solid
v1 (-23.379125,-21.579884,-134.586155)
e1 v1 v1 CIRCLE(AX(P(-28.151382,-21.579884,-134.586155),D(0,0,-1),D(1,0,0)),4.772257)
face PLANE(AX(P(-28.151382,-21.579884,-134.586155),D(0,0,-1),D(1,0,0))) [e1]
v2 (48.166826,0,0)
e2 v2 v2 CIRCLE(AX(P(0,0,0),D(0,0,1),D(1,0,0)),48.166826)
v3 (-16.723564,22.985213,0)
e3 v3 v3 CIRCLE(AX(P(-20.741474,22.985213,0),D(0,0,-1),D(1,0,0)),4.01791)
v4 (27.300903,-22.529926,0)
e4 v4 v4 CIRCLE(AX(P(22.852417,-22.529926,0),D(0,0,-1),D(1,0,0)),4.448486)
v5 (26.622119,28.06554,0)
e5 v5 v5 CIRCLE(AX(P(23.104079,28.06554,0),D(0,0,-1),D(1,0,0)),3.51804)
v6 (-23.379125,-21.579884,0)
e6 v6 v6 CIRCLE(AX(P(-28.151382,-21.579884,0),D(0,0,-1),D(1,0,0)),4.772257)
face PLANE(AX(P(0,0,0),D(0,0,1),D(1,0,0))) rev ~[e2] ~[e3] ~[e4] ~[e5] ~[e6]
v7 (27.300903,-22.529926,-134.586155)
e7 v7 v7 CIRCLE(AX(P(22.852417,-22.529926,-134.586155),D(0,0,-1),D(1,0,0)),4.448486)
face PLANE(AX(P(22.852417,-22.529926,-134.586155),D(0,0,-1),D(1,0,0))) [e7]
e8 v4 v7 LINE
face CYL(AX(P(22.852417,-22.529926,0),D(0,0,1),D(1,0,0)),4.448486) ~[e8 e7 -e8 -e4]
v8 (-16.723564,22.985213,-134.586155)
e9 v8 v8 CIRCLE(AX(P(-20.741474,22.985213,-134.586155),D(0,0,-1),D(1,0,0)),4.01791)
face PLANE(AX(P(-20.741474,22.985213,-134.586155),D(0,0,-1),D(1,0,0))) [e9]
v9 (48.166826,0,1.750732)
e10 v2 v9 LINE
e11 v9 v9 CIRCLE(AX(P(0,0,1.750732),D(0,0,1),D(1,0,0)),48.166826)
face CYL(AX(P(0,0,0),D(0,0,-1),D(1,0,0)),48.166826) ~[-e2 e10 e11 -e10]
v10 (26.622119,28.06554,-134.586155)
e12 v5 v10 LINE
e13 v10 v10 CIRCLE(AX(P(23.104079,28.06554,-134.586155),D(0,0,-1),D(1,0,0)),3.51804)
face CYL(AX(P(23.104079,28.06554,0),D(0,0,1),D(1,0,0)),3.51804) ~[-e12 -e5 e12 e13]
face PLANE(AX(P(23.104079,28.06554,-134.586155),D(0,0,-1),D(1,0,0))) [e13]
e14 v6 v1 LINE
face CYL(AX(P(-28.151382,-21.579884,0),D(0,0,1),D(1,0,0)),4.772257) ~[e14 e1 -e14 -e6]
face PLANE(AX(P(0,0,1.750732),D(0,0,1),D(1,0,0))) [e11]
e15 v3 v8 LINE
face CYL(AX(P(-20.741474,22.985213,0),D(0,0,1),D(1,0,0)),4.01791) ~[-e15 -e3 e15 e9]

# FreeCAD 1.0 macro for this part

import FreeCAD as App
import Part
import Sketcher

doc = App.newDocument("Part")
body = doc.addObject("PartDesign::Body", "Body")

# Sketch on XY plane
sketch1 = body.newObject("Sketcher::SketchObject", "Sketch")
sketch1.AttachmentSupport = (doc.getObject("XY_Plane"), [""])
sketch1.MapMode = "FlatFace"
sketch1.addGeometry(Part.Circle(App.Vector(0, 0, 0), App.Vector(0, 0, 1), 48), False)
sketch1.addConstraint(Sketcher.Constraint("Coincident", 0, 3, -1, 1))
sketch1.addConstraint(Sketcher.Constraint("Diameter", 0, 96.333652))
pad1 = body.newObject("PartDesign::Pad", "Pad")
pad1.Profile = sketch1
pad1.Length = 1.750732

# Sketch on XY plane
sketch2 = body.newObject("Sketcher::SketchObject", "Sketch001")
sketch2.AttachmentSupport = (doc.getObject("XY_Plane"), [""])
sketch2.MapMode = "FlatFace"
sketch2.addGeometry(Part.Circle(App.Vector(-20.7, 23, 0), App.Vector(0, 0, 1), 4), False)
sketch2.addGeometry(Part.Circle(App.Vector(-28.2, -21.6, 0), App.Vector(0, 0, 1), 4.8), False)
sketch2.addGeometry(Part.Circle(App.Vector(22.9, -22.5, 0), App.Vector(0, 0, 1), 4.4), False)
sketch2.addGeometry(Part.Circle(App.Vector(23.1, 28.1, 0), App.Vector(0, 0, 1), 3.5), False)
sketch2.addConstraint(Sketcher.Constraint("Diameter", 0, 8.03582))
sketch2.addConstraint(Sketcher.Constraint("Diameter", 3, 7.03608))
sketch2.addConstraint(Sketcher.Constraint("Diameter", 1, 9.544514))
sketch2.addConstraint(Sketcher.Constraint("Diameter", 2, 8.896972))
sketch2.addConstraint(Sketcher.Constraint("DistanceX", 1, 3, 2, 3, 51.003799))
sketch2.addConstraint(Sketcher.Constraint("DistanceX", -1, 1, 3, 3, 23.104079))
sketch2.addConstraint(Sketcher.Constraint("DistanceY", -1, 1, 3, 3, 28.06554))
sketch2.addConstraint(Sketcher.Constraint("DistanceX", 1, 3, 0, 3, 7.409908))
sketch2.addConstraint(Sketcher.Constraint("DistanceY", 2, 3, 1, 3, 0.950042))
sketch2.addConstraint(Sketcher.Constraint("DistanceY", 2, 3, 0, 3, 45.515139))
sketch2.addConstraint(Sketcher.Constraint("DistanceX", 2, 3, 3, 3, 0.251662))
sketch2.addConstraint(Sketcher.Constraint("DistanceY", -1, 1, 0, 3, 22.985213))
pad2 = body.newObject("PartDesign::Pad", "Pad001")
pad2.Profile = sketch2
pad2.Length = 134.586155
pad2.Reversed = True

doc.recompute()
